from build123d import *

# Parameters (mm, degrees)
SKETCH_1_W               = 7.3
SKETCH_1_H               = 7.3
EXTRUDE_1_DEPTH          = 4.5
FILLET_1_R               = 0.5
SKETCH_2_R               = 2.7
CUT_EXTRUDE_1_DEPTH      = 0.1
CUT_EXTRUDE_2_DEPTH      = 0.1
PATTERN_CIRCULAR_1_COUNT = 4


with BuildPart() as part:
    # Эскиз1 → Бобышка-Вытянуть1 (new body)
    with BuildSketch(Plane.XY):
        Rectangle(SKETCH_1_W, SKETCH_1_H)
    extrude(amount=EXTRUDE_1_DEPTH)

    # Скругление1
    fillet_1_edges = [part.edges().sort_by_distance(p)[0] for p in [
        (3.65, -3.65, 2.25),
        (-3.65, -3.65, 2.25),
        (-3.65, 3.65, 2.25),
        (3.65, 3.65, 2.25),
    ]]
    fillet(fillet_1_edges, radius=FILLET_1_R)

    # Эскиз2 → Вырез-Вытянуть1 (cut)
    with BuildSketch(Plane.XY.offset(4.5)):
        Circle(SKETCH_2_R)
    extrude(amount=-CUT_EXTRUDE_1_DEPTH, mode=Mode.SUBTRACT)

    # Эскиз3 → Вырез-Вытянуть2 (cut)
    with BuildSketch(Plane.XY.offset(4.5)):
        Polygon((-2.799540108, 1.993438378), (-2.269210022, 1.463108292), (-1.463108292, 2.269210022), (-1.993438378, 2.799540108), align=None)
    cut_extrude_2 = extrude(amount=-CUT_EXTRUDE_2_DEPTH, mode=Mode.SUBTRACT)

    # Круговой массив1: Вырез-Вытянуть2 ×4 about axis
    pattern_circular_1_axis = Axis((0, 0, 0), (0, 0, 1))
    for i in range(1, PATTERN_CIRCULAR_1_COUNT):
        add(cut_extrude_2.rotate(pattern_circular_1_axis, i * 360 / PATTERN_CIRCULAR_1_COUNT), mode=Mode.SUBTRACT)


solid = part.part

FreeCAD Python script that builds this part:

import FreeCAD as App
import Part
import Sketcher

V = App.Vector
Q = App.Units.Quantity


def edges_at(feature, points):
    """Names of the edges that pass closest to the given points."""
    edges = feature.Shape.Edges
    near = lambda p: min(range(len(edges)), key=lambda i: edges[i].distToShape(Part.Vertex(*p))[0])
    return sorted({f"Edge{near(p) + 1}" for p in points})


def add_polygon(sketch, points):
    """Adds a closed chain of lines whose ends are joined by coincident constraints."""
    first, n = sketch.GeometryCount, len(points)
    for a, b in zip(points, points[1:] + points[:1]):
        sketch.addGeometry(Part.LineSegment(App.Vector(*a, 0), App.Vector(*b, 0)), False)
    for i in range(n):
        sketch.addConstraint(Sketcher.Constraint("Coincident", first + i, 2, first + (i + 1) % n, 1))

doc = App.newDocument("Part")
params = doc.addObject("Spreadsheet::Sheet", "Params")
for row, (alias, value) in enumerate([
    ("sketch1_width", "7.3 mm"),
    ("pad1_length", "4.5 mm"),
    ("fillet_radius", "0.5 mm"),
    ("sketch2_diameter", "5.4 mm"),
    ("pocket1_length", "0.1 mm"),
    ("sketch3_length", "0.75 mm"),
    ("sketch3_length2", "1.14 mm"),
    ("pocket2_length", "0.1 mm"),
], start=1):
    params.set(f"A{row}", alias)
    params.set(f"B{row}", "=" + value)
    params.setAlias(f"B{row}", alias)

body = doc.addObject("PartDesign::Body", "Body")

# Sketch on XY plane
sketch1 = body.newObject("Sketcher::SketchObject", "Sketch")
sketch1.AttachmentSupport = (doc.getObject("XY_Plane"), [""])
sketch1.MapMode = "FlatFace"
add_polygon(sketch1, [(-4, 4), (-4, -4), (4, -4), (4, 4)])  # lines 0-3
sketch1.addConstraint(Sketcher.Constraint("Vertical", 0))
sketch1.addConstraint(Sketcher.Constraint("Horizontal", 1))
sketch1.addConstraint(Sketcher.Constraint("Vertical", 2))
sketch1.addConstraint(Sketcher.Constraint("Horizontal", 3))
sketch1.addConstraint(Sketcher.Constraint("Symmetric", 0, 2, 2, 2, -1, 1))
sketch1.addConstraint(Sketcher.Constraint("Equal", 3, 0))
sketch1.addConstraint(Sketcher.Constraint("DistanceX", 1, 1, 1, 2, Q("7.3 mm")))
sketch1.setExpression("Constraints[10]", "Params.sketch1_width")
pad1 = body.newObject("PartDesign::Pad", "Pad")
pad1.Profile = sketch1
pad1.setExpression("Length", "Params.pad1_length")
doc.recompute()

fillet = body.newObject("PartDesign::Fillet", "Fillet")
fillet.Base = (pad1, edges_at(pad1, [
    (3.65, -3.65, 2.25),
    (-3.65, -3.65, 2.25),
    (-3.65, 3.65, 2.25),
    (3.65, 3.65, 2.25),
]))
fillet.setExpression("Radius", "Params.fillet_radius")

# Sketch on XY plane
sketch2 = body.newObject("Sketcher::SketchObject", "Sketch001")
sketch2.AttachmentSupport = (doc.getObject("XY_Plane"), [""])
sketch2.MapMode = "FlatFace"
sketch2.AttachmentOffset = App.Placement(V(0, 0, 4.5), App.Rotation())
sketch2.addGeometry(Part.Circle(V(0, 0, 0), V(0, 0, 1), 2.7), False)
sketch2.addConstraint(Sketcher.Constraint("Coincident", 0, 3, -1, 1))
sketch2.addConstraint(Sketcher.Constraint("Diameter", 0, Q("5.4 mm")))
sketch2.setExpression("Constraints[1]", "Params.sketch2_diameter")
pocket1 = body.newObject("PartDesign::Pocket", "Pocket")
pocket1.Profile = sketch2
pocket1.setExpression("Length", "Params.pocket1_length")

# Sketch on XY plane
sketch3 = body.newObject("Sketcher::SketchObject", "Sketch002")
sketch3.AttachmentSupport = (doc.getObject("XY_Plane"), [""])
sketch3.MapMode = "FlatFace"
sketch3.AttachmentOffset = App.Placement(V(0, 0, 4.5), App.Rotation())
add_polygon(sketch3, [(-2.8, 2), (-2.3, 1.5), (-1.5, 2.3), (-2, 2.8)])  # lines 0-3
sketch3.addConstraint(Sketcher.Constraint("Perpendicular", 0, 1))
sketch3.addConstraint(Sketcher.Constraint("Perpendicular", 1, 2))
sketch3.addConstraint(Sketcher.Constraint("Perpendicular", 2, 3))
sketch3.addConstraint(Sketcher.Constraint("Angle", 0, Q("-45 deg")))
sketch3.addConstraint(Sketcher.Constraint("Distance", 0, Q("0.75 mm")))
sketch3.addConstraint(Sketcher.Constraint("Distance", 1, Q("1.14 mm")))
sketch3.addConstraint(Sketcher.Constraint("DistanceX", 0, 2, -1, 1, Q("2.26921 mm")))
sketch3.addConstraint(Sketcher.Constraint("DistanceY", -1, 1, 0, 2, Q("1.463108 mm")))
sketch3.setExpression("Constraints[8]", "Params.sketch3_length")
sketch3.setExpression("Constraints[9]", "Params.sketch3_length2")
pocket2 = body.newObject("PartDesign::Pocket", "Pocket001")
pocket2.Profile = sketch3
pocket2.setExpression("Length", "Params.pocket2_length")
doc.recompute()

polarpattern = body.newObject("PartDesign::PolarPattern", "PolarPattern")
polarpattern.Originals = [pocket2]
polarpattern.Axis = (doc.getObject("Z_Axis"), [""])
polarpattern.Angle = 360
polarpattern.Occurrences = 4
body.Tip = polarpattern

doc.recompute()
